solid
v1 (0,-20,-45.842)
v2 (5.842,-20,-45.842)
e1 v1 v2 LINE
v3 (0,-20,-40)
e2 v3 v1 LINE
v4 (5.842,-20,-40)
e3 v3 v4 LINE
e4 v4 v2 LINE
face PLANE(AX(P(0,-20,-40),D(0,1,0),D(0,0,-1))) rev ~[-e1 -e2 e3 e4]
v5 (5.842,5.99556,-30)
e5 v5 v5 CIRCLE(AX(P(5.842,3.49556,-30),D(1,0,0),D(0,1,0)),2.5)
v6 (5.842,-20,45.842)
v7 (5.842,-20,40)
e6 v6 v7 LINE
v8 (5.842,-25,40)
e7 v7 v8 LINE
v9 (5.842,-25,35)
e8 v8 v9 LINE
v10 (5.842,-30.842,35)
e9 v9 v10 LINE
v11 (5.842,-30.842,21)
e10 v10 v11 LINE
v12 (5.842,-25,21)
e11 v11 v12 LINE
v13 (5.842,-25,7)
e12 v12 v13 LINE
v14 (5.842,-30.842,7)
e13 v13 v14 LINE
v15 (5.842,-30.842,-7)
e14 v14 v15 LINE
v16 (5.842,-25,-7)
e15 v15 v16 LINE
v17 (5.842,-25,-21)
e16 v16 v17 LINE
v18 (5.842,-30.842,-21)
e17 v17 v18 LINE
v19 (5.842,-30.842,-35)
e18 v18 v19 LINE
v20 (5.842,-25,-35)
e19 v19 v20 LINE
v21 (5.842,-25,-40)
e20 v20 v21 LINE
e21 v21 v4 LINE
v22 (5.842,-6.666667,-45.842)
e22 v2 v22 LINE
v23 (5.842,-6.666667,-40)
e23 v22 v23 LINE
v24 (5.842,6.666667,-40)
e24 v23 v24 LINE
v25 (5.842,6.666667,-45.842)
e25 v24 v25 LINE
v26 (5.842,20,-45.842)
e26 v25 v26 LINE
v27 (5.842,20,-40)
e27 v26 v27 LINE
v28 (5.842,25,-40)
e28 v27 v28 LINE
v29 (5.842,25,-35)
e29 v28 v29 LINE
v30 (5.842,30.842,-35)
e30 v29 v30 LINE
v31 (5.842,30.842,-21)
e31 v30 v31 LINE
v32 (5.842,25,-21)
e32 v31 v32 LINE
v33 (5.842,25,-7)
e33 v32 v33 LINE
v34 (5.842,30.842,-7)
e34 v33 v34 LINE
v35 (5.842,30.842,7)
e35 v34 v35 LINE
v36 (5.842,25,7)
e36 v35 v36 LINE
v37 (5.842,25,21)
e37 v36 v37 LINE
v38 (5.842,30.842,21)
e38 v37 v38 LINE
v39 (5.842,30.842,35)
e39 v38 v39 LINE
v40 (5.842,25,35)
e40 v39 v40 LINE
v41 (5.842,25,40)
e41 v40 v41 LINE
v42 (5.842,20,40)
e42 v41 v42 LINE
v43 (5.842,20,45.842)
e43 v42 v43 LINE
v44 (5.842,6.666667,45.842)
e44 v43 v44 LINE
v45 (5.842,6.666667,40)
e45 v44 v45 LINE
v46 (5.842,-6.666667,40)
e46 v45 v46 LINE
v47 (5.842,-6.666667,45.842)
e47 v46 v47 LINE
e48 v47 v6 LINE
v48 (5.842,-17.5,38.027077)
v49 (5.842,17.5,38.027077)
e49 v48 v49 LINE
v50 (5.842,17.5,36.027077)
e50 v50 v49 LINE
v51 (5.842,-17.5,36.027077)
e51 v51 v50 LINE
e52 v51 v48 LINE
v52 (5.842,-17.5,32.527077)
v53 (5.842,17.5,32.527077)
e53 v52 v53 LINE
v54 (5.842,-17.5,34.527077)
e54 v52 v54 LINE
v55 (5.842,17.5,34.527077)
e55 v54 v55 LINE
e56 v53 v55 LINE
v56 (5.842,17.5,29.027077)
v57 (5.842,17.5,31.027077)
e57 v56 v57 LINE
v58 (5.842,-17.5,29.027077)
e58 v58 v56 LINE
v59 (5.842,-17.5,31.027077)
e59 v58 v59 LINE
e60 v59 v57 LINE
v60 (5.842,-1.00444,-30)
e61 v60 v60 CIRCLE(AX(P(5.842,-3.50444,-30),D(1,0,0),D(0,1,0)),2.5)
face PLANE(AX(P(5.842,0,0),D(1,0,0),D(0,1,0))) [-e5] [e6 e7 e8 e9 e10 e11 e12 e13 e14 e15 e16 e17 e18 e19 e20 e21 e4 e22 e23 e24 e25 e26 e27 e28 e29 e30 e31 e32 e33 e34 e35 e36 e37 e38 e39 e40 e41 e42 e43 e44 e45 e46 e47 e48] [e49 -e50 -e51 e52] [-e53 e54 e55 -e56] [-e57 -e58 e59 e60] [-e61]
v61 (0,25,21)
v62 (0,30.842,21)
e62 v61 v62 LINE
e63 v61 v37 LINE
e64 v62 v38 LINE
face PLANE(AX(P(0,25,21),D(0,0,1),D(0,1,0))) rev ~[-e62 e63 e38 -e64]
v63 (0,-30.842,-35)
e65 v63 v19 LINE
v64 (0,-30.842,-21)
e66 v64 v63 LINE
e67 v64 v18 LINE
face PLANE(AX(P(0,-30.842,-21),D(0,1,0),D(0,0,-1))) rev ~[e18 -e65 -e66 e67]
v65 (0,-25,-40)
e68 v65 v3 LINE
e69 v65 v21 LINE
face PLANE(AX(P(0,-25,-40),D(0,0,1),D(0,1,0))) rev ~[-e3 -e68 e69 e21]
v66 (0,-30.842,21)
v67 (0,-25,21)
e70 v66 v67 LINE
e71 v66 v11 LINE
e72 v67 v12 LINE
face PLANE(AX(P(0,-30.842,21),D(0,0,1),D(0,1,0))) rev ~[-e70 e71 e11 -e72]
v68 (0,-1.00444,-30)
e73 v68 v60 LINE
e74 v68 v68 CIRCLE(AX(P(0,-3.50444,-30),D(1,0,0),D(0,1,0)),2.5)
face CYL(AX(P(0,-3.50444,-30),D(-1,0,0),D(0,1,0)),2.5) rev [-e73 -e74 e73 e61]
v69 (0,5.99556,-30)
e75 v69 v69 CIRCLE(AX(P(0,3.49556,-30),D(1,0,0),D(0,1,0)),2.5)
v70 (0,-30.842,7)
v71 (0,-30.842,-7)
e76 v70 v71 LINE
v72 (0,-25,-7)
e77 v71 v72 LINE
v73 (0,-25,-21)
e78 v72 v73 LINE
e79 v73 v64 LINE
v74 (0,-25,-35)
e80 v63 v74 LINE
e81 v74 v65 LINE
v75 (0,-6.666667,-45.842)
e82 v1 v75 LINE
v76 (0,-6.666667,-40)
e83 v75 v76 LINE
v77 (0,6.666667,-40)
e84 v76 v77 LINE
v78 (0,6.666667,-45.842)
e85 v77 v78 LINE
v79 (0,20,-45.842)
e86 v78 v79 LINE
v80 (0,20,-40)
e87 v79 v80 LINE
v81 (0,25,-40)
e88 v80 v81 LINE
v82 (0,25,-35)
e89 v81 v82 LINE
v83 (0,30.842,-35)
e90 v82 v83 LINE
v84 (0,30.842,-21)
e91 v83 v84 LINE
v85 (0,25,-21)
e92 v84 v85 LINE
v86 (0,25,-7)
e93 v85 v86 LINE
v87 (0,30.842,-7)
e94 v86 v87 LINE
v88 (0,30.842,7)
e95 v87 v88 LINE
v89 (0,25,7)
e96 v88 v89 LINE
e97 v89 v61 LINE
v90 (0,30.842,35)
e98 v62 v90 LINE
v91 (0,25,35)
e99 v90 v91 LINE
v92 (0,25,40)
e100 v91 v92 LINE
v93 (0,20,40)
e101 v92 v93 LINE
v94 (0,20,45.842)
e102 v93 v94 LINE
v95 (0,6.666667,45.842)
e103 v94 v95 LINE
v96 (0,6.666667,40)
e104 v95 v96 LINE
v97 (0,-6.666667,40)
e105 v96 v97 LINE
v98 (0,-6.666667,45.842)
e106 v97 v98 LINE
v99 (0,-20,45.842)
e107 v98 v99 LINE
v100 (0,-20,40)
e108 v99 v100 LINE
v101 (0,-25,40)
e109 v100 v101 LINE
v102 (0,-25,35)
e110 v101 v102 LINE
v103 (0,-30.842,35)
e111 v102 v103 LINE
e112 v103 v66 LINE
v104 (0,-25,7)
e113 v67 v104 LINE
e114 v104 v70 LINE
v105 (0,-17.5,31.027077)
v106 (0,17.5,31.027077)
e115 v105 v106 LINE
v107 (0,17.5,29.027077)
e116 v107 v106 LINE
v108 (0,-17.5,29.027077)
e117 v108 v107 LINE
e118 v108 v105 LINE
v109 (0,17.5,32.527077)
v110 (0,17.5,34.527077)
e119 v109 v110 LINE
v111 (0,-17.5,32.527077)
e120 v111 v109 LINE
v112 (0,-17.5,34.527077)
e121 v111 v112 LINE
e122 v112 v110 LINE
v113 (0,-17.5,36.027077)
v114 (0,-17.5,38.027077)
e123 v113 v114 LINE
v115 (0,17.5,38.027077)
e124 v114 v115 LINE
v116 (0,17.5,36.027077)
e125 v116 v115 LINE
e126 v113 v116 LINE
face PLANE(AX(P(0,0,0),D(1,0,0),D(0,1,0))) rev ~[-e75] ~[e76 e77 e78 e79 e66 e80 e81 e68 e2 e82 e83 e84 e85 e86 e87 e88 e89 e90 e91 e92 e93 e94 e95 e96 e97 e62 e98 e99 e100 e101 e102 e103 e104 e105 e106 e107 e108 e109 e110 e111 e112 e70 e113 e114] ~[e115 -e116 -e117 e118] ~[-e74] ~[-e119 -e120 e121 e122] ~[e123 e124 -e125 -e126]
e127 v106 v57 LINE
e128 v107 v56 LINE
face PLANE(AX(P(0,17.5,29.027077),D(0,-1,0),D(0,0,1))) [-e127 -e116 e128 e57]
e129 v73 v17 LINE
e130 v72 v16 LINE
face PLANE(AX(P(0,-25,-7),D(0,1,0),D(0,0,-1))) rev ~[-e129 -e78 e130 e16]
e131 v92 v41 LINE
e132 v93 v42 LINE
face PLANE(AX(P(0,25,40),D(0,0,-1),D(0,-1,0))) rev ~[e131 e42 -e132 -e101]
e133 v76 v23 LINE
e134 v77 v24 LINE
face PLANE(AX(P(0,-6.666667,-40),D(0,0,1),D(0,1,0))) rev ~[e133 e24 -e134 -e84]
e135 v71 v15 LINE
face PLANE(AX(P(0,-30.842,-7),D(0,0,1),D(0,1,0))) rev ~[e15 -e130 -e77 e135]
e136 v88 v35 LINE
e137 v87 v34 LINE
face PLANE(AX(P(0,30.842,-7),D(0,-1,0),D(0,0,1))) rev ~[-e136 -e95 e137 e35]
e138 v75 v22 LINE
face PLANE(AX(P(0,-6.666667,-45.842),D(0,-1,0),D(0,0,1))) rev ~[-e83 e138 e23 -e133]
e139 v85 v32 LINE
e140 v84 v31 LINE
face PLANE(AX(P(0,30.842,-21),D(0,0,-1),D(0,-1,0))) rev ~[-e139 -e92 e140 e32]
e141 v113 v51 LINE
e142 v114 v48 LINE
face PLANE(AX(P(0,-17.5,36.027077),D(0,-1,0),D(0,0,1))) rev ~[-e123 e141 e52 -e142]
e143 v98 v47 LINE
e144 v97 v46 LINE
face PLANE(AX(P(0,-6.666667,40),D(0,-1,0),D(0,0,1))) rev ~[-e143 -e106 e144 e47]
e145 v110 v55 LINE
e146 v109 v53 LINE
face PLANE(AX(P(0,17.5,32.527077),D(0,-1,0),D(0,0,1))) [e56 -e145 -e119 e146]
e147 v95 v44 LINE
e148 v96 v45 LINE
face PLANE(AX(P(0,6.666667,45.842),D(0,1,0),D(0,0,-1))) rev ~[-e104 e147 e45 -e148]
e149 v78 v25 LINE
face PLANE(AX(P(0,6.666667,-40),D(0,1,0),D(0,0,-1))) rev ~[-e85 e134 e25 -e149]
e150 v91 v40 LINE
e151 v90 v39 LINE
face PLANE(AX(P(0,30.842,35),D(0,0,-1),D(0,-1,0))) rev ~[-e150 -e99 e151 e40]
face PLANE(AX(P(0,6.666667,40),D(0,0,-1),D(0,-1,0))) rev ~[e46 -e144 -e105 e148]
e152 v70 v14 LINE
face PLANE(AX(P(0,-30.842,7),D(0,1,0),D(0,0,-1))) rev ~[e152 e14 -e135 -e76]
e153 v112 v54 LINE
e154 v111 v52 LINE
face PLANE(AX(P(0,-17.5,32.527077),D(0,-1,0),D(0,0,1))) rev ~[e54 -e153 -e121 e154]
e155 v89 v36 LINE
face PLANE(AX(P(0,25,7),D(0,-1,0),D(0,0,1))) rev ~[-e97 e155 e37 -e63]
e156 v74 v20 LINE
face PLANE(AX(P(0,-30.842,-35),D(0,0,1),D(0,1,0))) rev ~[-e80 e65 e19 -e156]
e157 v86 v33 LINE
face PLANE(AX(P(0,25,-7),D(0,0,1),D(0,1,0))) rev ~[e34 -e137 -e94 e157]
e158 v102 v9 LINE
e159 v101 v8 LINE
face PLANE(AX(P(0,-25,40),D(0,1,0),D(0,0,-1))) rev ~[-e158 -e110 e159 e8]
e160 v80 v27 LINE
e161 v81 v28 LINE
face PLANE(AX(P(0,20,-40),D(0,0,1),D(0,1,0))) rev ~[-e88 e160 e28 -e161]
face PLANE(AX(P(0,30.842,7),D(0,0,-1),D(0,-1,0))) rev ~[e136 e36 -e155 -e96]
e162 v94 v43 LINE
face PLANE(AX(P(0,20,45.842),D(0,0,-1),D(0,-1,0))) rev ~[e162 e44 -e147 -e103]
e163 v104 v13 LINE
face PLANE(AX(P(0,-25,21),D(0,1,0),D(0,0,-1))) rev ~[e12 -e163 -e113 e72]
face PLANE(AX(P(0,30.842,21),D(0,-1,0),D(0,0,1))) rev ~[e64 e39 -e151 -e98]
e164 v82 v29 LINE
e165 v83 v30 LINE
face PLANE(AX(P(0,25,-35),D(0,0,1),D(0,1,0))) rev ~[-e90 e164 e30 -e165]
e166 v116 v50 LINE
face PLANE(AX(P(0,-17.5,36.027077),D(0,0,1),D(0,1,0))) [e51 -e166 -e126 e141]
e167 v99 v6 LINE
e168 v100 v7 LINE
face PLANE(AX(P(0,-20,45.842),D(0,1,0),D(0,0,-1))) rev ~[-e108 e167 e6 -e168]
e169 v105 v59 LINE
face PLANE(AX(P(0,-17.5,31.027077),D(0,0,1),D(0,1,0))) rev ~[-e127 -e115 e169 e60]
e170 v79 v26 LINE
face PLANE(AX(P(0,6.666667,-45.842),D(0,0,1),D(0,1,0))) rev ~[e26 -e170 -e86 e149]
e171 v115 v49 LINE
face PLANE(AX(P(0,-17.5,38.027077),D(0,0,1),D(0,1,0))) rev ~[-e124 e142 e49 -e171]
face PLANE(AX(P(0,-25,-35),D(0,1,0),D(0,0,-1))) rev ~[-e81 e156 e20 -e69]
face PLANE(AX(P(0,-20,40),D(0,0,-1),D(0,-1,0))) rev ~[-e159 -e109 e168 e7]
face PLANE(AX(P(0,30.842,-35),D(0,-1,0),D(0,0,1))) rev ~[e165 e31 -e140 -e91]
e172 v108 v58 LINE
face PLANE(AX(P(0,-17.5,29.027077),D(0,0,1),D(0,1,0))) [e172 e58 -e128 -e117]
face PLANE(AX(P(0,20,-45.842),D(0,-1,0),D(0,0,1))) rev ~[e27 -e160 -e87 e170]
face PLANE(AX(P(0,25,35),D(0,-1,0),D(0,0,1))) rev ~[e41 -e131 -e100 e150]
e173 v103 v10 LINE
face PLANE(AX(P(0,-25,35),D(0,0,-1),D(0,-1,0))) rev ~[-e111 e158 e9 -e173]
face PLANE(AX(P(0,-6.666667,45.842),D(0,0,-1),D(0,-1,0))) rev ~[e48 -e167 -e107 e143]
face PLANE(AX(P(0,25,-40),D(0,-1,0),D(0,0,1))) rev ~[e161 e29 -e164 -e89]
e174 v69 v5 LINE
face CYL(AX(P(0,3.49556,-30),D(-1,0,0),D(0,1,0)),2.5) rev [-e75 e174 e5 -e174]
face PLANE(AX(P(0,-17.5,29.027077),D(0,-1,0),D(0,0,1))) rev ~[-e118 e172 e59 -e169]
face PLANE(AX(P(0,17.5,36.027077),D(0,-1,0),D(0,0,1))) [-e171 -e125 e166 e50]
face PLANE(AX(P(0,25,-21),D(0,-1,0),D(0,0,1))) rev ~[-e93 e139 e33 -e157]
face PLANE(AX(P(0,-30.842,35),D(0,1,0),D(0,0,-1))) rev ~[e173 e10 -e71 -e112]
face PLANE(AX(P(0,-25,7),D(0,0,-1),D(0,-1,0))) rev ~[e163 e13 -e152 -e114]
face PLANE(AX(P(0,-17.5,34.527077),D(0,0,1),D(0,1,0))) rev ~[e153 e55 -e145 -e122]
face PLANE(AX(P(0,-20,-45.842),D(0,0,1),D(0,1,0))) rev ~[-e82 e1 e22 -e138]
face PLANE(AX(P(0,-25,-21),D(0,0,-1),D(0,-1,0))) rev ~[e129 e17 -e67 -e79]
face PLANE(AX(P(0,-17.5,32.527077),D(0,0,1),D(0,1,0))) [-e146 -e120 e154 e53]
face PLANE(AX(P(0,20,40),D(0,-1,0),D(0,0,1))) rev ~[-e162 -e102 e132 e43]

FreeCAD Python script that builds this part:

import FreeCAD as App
import Part
import Sketcher

V = App.Vector


def add_polygon(sketch, points):
    """Adds a closed chain of lines whose ends are joined by coincident constraints."""
    first, n = sketch.GeometryCount, len(points)
    for a, b in zip(points, points[1:] + points[:1]):
        sketch.addGeometry(Part.LineSegment(App.Vector(*a, 0), App.Vector(*b, 0)), False)
    for i in range(n):
        sketch.addConstraint(Sketcher.Constraint("Coincident", first + i, 2, first + (i + 1) % n, 1))

doc = App.newDocument("Part")
params = doc.addObject("Spreadsheet::Sheet", "Params")
for row, (alias, value) in enumerate([
    ("sketch1_diameter", "5 mm"),
    ("sketch1_width", "5 mm"),
    ("sketch1_width2", "35 mm"),
    ("sketch1_height", "14 mm"),
    ("sketch1_height2", "2 mm"),
    ("pad1_length", "5.842 mm"),
], start=1):
    params.set(f"A{row}", alias)
    params.set(f"B{row}", "=" + value)
    params.setAlias(f"B{row}", alias)

body = doc.addObject("PartDesign::Body", "Body")

# Sketch on YZ plane
sketch1 = body.newObject("Sketcher::SketchObject", "Sketch")
sketch1.AttachmentSupport = (doc.getObject("YZ_Plane"), [""])
sketch1.MapMode = "FlatFace"
add_polygon(sketch1, [(-25, -35), (-25, -40), (-20, -40), (-20, -45.8), (-6.7, -45.8), (-6.7, -40), (6.7, -40), (6.7, -45.8), (20, -45.8), (20, -40), (25, -40), (25, -35), (30.8, -35), (30.8, -21), (25, -21), (25, -7), (30.8, -7), (30.8, 7), (25, 7), (25, 21), (30.8, 21), (30.8, 35), (25, 35), (25, 40), (20, 40), (20, 45.8), (6.7, 45.8), (6.7, 40), (-6.7, 40), (-6.7, 45.8), (-20, 45.8), (-20, 40), (-25, 40), (-25, 35), (-30.8, 35), (-30.8, 21), (-25, 21), (-25, 7), (-30.8, 7), (-30.8, -7), (-25, -7), (-25, -21), (-30.8, -21), (-30.8, -35)])  # lines 0-43
sketch1.addGeometry(Part.Circle(V(-3.5, -30, 0), V(0, 0, 1), 2.5), False)  # 44
sketch1.addGeometry(Part.Circle(V(3.5, -30, 0), V(0, 0, 1), 2.5), False)  # 45
add_polygon(sketch1, [(17.5, 29), (-17.5, 29), (-17.5, 31), (17.5, 31)])  # lines 46-49
add_polygon(sketch1, [(17.5, 32.5), (-17.5, 32.5), (-17.5, 34.5), (17.5, 34.5)])  # lines 50-53
add_polygon(sketch1, [(17.5, 36), (-17.5, 36), (-17.5, 38), (17.5, 38)])  # lines 54-57
sketch1.addConstraint(Sketcher.Constraint("Vertical", 0))
sketch1.addConstraint(Sketcher.Constraint("Horizontal", 1))
sketch1.addConstraint(Sketcher.Constraint("Vertical", 2))
sketch1.addConstraint(Sketcher.Constraint("Horizontal", 3))
sketch1.addConstraint(Sketcher.Constraint("Vertical", 4))
sketch1.addConstraint(Sketcher.Constraint("Horizontal", 5))
sketch1.addConstraint(Sketcher.Constraint("Vertical", 6))
sketch1.addConstraint(Sketcher.Constraint("Horizontal", 7))
sketch1.addConstraint(Sketcher.Constraint("Vertical", 8))
sketch1.addConstraint(Sketcher.Constraint("Horizontal", 9))
sketch1.addConstraint(Sketcher.Constraint("Vertical", 10))
sketch1.addConstraint(Sketcher.Constraint("Horizontal", 11))
sketch1.addConstraint(Sketcher.Constraint("Vertical", 12))
sketch1.addConstraint(Sketcher.Constraint("Horizontal", 13))
sketch1.addConstraint(Sketcher.Constraint("Vertical", 14))
sketch1.addConstraint(Sketcher.Constraint("Horizontal", 15))
sketch1.addConstraint(Sketcher.Constraint("Vertical", 16))
sketch1.addConstraint(Sketcher.Constraint("Horizontal", 17))
sketch1.addConstraint(Sketcher.Constraint("Vertical", 18))
sketch1.addConstraint(Sketcher.Constraint("Horizontal", 19))
sketch1.addConstraint(Sketcher.Constraint("Vertical", 20))
sketch1.addConstraint(Sketcher.Constraint("Horizontal", 21))
sketch1.addConstraint(Sketcher.Constraint("Vertical", 22))
sketch1.addConstraint(Sketcher.Constraint("Horizontal", 23))
sketch1.addConstraint(Sketcher.Constraint("Vertical", 24))
sketch1.addConstraint(Sketcher.Constraint("Horizontal", 25))
sketch1.addConstraint(Sketcher.Constraint("Vertical", 26))
sketch1.addConstraint(Sketcher.Constraint("Horizontal", 27))
sketch1.addConstraint(Sketcher.Constraint("Vertical", 28))
sketch1.addConstraint(Sketcher.Constraint("Horizontal", 29))
sketch1.addConstraint(Sketcher.Constraint("Vertical", 30))
sketch1.addConstraint(Sketcher.Constraint("Horizontal", 31))
sketch1.addConstraint(Sketcher.Constraint("Vertical", 32))
sketch1.addConstraint(Sketcher.Constraint("Horizontal", 33))
sketch1.addConstraint(Sketcher.Constraint("Vertical", 34))
sketch1.addConstraint(Sketcher.Constraint("Horizontal", 35))
sketch1.addConstraint(Sketcher.Constraint("Vertical", 36))
sketch1.addConstraint(Sketcher.Constraint("Horizontal", 37))
sketch1.addConstraint(Sketcher.Constraint("Vertical", 38))
sketch1.addConstraint(Sketcher.Constraint("Horizontal", 39))
sketch1.addConstraint(Sketcher.Constraint("Vertical", 40))
sketch1.addConstraint(Sketcher.Constraint("Horizontal", 41))
sketch1.addConstraint(Sketcher.Constraint("Vertical", 42))
sketch1.addConstraint(Sketcher.Constraint("Horizontal", 43))
sketch1.addConstraint(Sketcher.Constraint("Horizontal", 46))
sketch1.addConstraint(Sketcher.Constraint("Vertical", 47))
sketch1.addConstraint(Sketcher.Constraint("Horizontal", 48))
sketch1.addConstraint(Sketcher.Constraint("Vertical", 49))
sketch1.addConstraint(Sketcher.Constraint("Horizontal", 50))
sketch1.addConstraint(Sketcher.Constraint("Vertical", 51))
sketch1.addConstraint(Sketcher.Constraint("Horizontal", 52))
sketch1.addConstraint(Sketcher.Constraint("Vertical", 53))
sketch1.addConstraint(Sketcher.Constraint("Horizontal", 54))
sketch1.addConstraint(Sketcher.Constraint("Vertical", 55))
sketch1.addConstraint(Sketcher.Constraint("Horizontal", 56))
sketch1.addConstraint(Sketcher.Constraint("Vertical", 57))
sketch1.addConstraint(Sketcher.Constraint("Equal", 44, 45))
sketch1.addConstraint(Sketcher.Constraint("Symmetric", 0, 2, 22, 2, -1, 1))
sketch1.addConstraint(Sketcher.Constraint("Symmetric", 2, 2, 24, 2, -1, 1))
sketch1.addConstraint(Sketcher.Constraint("Symmetric", 4, 2, 26, 2, -1, 1))
sketch1.addConstraint(Sketcher.Constraint("Symmetric", 6, 2, 28, 2, -1, 1))
sketch1.addConstraint(Sketcher.Constraint("Symmetric", 8, 2, 30, 2, -1, 1))
sketch1.addConstraint(Sketcher.Constraint("Symmetric", 10, 2, 32, 2, -1, 1))
sketch1.addConstraint(Sketcher.Constraint("Symmetric", 12, 2, 34, 2, -1, 1))
sketch1.addConstraint(Sketcher.Constraint("Symmetric", 14, 2, 36, 2, -1, 1))
sketch1.addConstraint(Sketcher.Constraint("Symmetric", 16, 2, 38, 2, -1, 1))
sketch1.addConstraint(Sketcher.Constraint("Symmetric", 18, 2, 40, 2, -1, 1))
sketch1.addConstraint(Sketcher.Constraint("Symmetric", 20, 2, 42, 2, -1, 1))
sketch1.addConstraint(Sketcher.Constraint("Symmetric", 3, 2, 6, 2, -2))
sketch1.addConstraint(Sketcher.Constraint("Symmetric", 1, 2, 8, 2, -2))
sketch1.addConstraint(Sketcher.Constraint("Symmetric", 21, 2, 32, 2, -2))
sketch1.addConstraint(Sketcher.Constraint("Symmetric", 19, 2, 34, 2, -2))
sketch1.addConstraint(Sketcher.Constraint("Symmetric", 17, 2, 36, 2, -2))
sketch1.addConstraint(Sketcher.Constraint("Horizontal", 44, 3, 45, 3))
sketch1.addConstraint(Sketcher.Constraint("Horizontal", 1, 2, 4, 2))
sketch1.addConstraint(Sketcher.Constraint("Vertical", 10, 2, 13, 2))
sketch1.addConstraint(Sketcher.Constraint("Vertical", 12, 2, 15, 2))
sketch1.addConstraint(Sketcher.Constraint("Vertical", 47, 2, 50, 2))
sketch1.addConstraint(Sketcher.Constraint("Vertical", 49, 2, 52, 2))
sketch1.addConstraint(Sketcher.Constraint("Vertical", 51, 2, 54, 2))
sketch1.addConstraint(Sketcher.Constraint("Vertical", 53, 2, 56, 2))
sketch1.addConstraint(Sketcher.Constraint("Equal", 3, 5))
sketch1.addConstraint(Sketcher.Constraint("Equal", 31, 0))
sketch1.addConstraint(Sketcher.Constraint("Equal", 43, 2))
sketch1.addConstraint(Sketcher.Constraint("Equal", 12, 14))
sketch1.addConstraint(Sketcher.Constraint("Equal", 14, 16))
sketch1.addConstraint(Sketcher.Constraint("Equal", 49, 51))
sketch1.addConstraint(Sketcher.Constraint("Equal", 53, 55))
sketch1.addConstraint(Sketcher.Constraint("Diameter", 44, 5.0))
sketch1.addConstraint(Sketcher.Constraint("DistanceX", 1, 1, 1, 2, 5.0))
sketch1.addConstraint(Sketcher.Constraint("DistanceX", 46, 2, 46, 1, 35.0))
sketch1.addConstraint(Sketcher.Constraint("DistanceY", 12, 1, 12, 2, 14.0))
sketch1.addConstraint(Sketcher.Constraint("DistanceY", 47, 1, 47, 2, 2.0))
sketch1.addConstraint(Sketcher.Constraint("DistanceY", 44, 3, -1, 1, 30.0))
sketch1.addConstraint(Sketcher.Constraint("DistanceX", 0, 2, -1, 1, 25.0))
sketch1.addConstraint(Sketcher.Constraint("DistanceX", 44, 3, 45, 3, 7.0))
sketch1.addConstraint(Sketcher.Constraint("DistanceY", 47, 2, 54, 2, 5.0))
sketch1.addConstraint(Sketcher.Constraint("DistanceX", 46, 2, -1, 1, 17.5))
sketch1.addConstraint(Sketcher.Constraint("DistanceY", 47, 2, 50, 2, 1.5))
sketch1.addConstraint(Sketcher.Constraint("DistanceX", 11, 1, 11, 2, 5.842))
sketch1.addConstraint(Sketcher.Constraint("DistanceX", 44, 3, -1, 1, 3.50444))
sketch1.addConstraint(Sketcher.Constraint("DistanceY", -1, 1, 46, 2, 29.027077))
sketch1.setExpression("Constraints[144]", "Params.sketch1_diameter")
sketch1.setExpression("Constraints[145]", "Params.sketch1_width")
sketch1.setExpression("Constraints[146]", "Params.sketch1_width2")
sketch1.setExpression("Constraints[147]", "Params.sketch1_height")
sketch1.setExpression("Constraints[148]", "Params.sketch1_height2")
pad1 = body.newObject("PartDesign::Pad", "Pad")
pad1.Profile = sketch1
pad1.setExpression("Length", "Params.pad1_length")

doc.recompute()
